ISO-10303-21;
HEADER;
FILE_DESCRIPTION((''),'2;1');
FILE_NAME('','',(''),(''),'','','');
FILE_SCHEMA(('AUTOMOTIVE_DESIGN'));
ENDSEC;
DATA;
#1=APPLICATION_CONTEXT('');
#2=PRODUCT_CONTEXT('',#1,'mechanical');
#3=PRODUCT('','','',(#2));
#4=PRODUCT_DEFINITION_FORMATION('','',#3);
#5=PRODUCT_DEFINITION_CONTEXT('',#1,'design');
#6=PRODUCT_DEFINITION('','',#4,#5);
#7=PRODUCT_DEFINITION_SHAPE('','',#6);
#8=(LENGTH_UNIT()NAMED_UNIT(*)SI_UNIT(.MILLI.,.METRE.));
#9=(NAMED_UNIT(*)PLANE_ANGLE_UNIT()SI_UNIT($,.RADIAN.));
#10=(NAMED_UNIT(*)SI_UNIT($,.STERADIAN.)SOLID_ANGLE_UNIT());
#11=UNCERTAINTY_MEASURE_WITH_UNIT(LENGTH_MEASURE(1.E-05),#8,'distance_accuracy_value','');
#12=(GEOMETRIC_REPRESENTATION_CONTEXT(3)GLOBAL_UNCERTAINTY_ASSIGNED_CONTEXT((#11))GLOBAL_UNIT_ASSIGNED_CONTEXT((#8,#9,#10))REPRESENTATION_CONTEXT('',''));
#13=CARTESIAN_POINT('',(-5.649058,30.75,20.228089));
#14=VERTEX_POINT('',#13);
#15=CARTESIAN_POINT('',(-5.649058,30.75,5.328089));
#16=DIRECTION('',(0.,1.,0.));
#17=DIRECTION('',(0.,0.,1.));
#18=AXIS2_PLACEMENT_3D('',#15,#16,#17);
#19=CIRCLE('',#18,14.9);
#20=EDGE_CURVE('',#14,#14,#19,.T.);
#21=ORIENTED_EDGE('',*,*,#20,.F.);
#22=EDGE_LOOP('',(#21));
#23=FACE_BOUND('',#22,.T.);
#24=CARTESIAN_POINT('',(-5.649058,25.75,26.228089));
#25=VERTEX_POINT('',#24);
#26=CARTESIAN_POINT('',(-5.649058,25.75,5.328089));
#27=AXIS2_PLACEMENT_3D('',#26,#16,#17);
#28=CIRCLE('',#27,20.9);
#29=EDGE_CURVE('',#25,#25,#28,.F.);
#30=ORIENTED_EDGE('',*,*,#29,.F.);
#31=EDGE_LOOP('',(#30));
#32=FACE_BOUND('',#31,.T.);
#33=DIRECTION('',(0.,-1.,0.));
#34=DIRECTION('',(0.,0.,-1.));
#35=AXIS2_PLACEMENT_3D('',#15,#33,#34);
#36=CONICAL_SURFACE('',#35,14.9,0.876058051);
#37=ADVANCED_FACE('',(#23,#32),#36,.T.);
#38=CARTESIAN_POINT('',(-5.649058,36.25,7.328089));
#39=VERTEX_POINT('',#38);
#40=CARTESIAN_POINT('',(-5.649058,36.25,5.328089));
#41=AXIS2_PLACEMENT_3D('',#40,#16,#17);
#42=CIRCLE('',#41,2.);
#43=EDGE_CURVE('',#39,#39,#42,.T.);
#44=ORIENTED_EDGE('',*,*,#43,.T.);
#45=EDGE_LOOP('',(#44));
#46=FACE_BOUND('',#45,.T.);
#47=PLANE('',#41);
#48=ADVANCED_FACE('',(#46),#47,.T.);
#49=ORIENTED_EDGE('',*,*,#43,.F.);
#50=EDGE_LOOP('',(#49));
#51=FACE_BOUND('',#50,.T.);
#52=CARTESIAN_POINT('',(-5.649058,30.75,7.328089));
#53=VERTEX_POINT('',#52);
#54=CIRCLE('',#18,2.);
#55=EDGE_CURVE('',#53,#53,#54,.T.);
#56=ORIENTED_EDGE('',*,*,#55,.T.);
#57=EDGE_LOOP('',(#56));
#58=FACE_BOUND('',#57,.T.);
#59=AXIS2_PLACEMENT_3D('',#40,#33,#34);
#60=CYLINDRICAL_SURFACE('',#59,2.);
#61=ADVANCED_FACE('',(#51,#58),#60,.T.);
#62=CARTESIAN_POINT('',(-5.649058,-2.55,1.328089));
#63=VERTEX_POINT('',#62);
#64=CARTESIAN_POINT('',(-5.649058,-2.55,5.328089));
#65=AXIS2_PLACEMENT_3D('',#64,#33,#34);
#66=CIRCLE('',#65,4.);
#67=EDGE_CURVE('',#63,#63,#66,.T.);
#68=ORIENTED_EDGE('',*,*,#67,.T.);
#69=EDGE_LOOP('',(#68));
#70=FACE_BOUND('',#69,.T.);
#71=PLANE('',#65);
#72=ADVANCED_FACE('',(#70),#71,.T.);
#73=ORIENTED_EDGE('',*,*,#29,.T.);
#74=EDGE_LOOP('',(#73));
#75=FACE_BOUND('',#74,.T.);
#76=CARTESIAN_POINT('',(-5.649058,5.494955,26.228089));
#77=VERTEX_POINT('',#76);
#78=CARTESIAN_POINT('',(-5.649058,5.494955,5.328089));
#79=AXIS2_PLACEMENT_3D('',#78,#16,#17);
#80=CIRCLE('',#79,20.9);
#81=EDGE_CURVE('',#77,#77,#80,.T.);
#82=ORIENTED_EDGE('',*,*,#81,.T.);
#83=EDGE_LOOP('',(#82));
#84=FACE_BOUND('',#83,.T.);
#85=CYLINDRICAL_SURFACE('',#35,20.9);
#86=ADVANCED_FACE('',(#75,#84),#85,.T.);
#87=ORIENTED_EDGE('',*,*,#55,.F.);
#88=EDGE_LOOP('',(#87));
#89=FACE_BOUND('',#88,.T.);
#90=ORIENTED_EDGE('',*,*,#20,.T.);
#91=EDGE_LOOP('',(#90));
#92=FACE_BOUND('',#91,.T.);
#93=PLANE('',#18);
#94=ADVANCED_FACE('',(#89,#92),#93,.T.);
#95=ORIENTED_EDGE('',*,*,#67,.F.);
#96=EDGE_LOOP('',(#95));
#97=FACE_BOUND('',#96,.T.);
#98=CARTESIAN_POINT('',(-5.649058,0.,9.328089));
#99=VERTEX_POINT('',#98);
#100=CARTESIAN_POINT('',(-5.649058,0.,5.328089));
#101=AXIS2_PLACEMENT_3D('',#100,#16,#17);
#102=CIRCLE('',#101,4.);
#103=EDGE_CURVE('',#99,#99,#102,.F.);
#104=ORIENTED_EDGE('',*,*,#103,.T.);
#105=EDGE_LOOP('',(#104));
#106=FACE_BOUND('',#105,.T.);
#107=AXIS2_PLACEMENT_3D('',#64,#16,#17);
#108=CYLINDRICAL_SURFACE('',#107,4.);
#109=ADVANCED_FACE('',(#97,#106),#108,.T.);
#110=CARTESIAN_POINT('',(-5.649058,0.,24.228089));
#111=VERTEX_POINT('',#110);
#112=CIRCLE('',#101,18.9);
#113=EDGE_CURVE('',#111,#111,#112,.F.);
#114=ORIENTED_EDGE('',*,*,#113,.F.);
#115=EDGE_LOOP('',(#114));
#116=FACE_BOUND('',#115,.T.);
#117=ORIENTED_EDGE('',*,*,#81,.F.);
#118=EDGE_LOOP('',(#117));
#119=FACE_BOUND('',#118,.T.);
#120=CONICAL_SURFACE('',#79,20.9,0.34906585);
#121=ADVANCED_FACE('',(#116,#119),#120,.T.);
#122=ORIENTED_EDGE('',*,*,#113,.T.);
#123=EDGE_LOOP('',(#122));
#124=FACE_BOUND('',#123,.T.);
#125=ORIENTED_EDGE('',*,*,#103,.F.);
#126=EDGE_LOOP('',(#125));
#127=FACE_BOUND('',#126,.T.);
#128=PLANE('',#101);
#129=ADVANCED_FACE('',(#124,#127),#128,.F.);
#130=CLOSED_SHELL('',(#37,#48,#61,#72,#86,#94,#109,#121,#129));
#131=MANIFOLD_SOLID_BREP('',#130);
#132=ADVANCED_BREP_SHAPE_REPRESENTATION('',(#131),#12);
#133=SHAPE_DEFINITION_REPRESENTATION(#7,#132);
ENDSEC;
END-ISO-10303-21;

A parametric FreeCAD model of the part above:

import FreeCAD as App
import Part
import Sketcher

V = App.Vector


def edges_at(feature, points):
    """Names of the edges that pass closest to the given points."""
    edges = feature.Shape.Edges
    near = lambda p: min(range(len(edges)), key=lambda i: edges[i].distToShape(Part.Vertex(*p))[0])
    return sorted({f"Edge{near(p) + 1}" for p in points})

doc = App.newDocument("Part")
params = doc.addObject("Spreadsheet::Sheet", "Params")
for row, (alias, value) in enumerate([
    ("sketch1_diameter", "41.8 mm"),
    ("pad1_length", "30.75 mm"),
    ("chamfer_size", "5 mm"),
    ("chamfer_size2", "6 mm"),
    ("chamfer2_size", "2 mm"),
    ("chamfer2_size2", "5.494955 mm"),
    ("sketch2_diameter", "4 mm"),
    ("pad2_length", "5.5 mm"),
    ("sketch3_diameter", "8 mm"),
    ("pad3_length", "2.55 mm"),
], start=1):
    params.set(f"A{row}", alias)
    params.set(f"B{row}", "=" + value)
    params.setAlias(f"B{row}", alias)

body = doc.addObject("PartDesign::Body", "Body")

# Sketch on XZ plane
sketch1 = doc.addObject("Sketcher::SketchObject", "Sketch")
body.addObject(sketch1)
sketch1.AttachmentSupport = (doc.XZ_Plane, [""])
sketch1.MapMode = "FlatFace"
sketch1.addGeometry(Part.Circle(V(-6, 5, 0), V(0, 0, 1), 21), False)
sketch1.addConstraint([
    Sketcher.Constraint("Diameter", 0, 41.8),
    Sketcher.Constraint("DistanceY", -1, 1, 0, 3, 5.328089),
    Sketcher.Constraint("DistanceX", 0, 3, -1, 1, 5.649058),
])
sketch1.setExpression("Constraints[0]", "Params.sketch1_diameter")
pad1 = doc.addObject("PartDesign::Pad", "Pad")
body.addObject(pad1)
pad1.Profile = sketch1
pad1.setExpression("Length", "Params.pad1_length")
pad1.Reversed = True
doc.recompute()

chamfer = doc.addObject("PartDesign::Chamfer", "Chamfer")
body.addObject(chamfer)
chamfer.Base = (pad1, edges_at(pad1, [(-5.649, 30.75, -15.572)]))
chamfer.ChamferType = "Two distances"
chamfer.setExpression("Size", "Params.chamfer_size")
chamfer.setExpression("Size2", "Params.chamfer_size2")
doc.recompute()

chamfer2 = doc.addObject("PartDesign::Chamfer", "Chamfer001")
body.addObject(chamfer2)
chamfer2.Base = (chamfer, edges_at(chamfer, [(-5.649, 0, -15.572)]))
chamfer2.ChamferType = "Two distances"
chamfer2.setExpression("Size", "Params.chamfer2_size")
chamfer2.setExpression("Size2", "Params.chamfer2_size2")
chamfer2.FlipDirection = True

# Sketch on XZ plane
sketch2 = doc.addObject("Sketcher::SketchObject", "Sketch001")
body.addObject(sketch2)
sketch2.AttachmentSupport = (doc.XZ_Plane, [""])
sketch2.MapMode = "FlatFace"
sketch2.AttachmentOffset = App.Placement(V(0, 0, -30.75), App.Rotation())
sketch2.addGeometry(Part.Circle(V(-5.6, 5.3, 0), V(0, 0, 1), 2), False)
sketch2.addConstraint([
    Sketcher.Constraint("Diameter", 0, 4.0),
    Sketcher.Constraint("DistanceY", -1, 1, 0, 3, 5.328089),
    Sketcher.Constraint("DistanceX", 0, 3, -1, 1, 5.649058),
])
sketch2.setExpression("Constraints[0]", "Params.sketch2_diameter")
pad2 = doc.addObject("PartDesign::Pad", "Pad001")
body.addObject(pad2)
pad2.Profile = sketch2
pad2.setExpression("Length", "Params.pad2_length")
pad2.Reversed = True

# Sketch on XZ plane
sketch3 = doc.addObject("Sketcher::SketchObject", "Sketch002")
body.addObject(sketch3)
sketch3.AttachmentSupport = (doc.XZ_Plane, [""])
sketch3.MapMode = "FlatFace"
sketch3.addGeometry(Part.Circle(V(-5.6, 5.3, 0), V(0, 0, 1), 4), False)
sketch3.addConstraint([
    Sketcher.Constraint("Diameter", 0, 8.0),
    Sketcher.Constraint("DistanceY", -1, 1, 0, 3, 5.328089),
    Sketcher.Constraint("DistanceX", 0, 3, -1, 1, 5.649058),
])
sketch3.setExpression("Constraints[0]", "Params.sketch3_diameter")
pad3 = doc.addObject("PartDesign::Pad", "Pad002")
body.addObject(pad3)
pad3.Profile = sketch3
pad3.setExpression("Length", "Params.pad3_length")

doc.recompute()
